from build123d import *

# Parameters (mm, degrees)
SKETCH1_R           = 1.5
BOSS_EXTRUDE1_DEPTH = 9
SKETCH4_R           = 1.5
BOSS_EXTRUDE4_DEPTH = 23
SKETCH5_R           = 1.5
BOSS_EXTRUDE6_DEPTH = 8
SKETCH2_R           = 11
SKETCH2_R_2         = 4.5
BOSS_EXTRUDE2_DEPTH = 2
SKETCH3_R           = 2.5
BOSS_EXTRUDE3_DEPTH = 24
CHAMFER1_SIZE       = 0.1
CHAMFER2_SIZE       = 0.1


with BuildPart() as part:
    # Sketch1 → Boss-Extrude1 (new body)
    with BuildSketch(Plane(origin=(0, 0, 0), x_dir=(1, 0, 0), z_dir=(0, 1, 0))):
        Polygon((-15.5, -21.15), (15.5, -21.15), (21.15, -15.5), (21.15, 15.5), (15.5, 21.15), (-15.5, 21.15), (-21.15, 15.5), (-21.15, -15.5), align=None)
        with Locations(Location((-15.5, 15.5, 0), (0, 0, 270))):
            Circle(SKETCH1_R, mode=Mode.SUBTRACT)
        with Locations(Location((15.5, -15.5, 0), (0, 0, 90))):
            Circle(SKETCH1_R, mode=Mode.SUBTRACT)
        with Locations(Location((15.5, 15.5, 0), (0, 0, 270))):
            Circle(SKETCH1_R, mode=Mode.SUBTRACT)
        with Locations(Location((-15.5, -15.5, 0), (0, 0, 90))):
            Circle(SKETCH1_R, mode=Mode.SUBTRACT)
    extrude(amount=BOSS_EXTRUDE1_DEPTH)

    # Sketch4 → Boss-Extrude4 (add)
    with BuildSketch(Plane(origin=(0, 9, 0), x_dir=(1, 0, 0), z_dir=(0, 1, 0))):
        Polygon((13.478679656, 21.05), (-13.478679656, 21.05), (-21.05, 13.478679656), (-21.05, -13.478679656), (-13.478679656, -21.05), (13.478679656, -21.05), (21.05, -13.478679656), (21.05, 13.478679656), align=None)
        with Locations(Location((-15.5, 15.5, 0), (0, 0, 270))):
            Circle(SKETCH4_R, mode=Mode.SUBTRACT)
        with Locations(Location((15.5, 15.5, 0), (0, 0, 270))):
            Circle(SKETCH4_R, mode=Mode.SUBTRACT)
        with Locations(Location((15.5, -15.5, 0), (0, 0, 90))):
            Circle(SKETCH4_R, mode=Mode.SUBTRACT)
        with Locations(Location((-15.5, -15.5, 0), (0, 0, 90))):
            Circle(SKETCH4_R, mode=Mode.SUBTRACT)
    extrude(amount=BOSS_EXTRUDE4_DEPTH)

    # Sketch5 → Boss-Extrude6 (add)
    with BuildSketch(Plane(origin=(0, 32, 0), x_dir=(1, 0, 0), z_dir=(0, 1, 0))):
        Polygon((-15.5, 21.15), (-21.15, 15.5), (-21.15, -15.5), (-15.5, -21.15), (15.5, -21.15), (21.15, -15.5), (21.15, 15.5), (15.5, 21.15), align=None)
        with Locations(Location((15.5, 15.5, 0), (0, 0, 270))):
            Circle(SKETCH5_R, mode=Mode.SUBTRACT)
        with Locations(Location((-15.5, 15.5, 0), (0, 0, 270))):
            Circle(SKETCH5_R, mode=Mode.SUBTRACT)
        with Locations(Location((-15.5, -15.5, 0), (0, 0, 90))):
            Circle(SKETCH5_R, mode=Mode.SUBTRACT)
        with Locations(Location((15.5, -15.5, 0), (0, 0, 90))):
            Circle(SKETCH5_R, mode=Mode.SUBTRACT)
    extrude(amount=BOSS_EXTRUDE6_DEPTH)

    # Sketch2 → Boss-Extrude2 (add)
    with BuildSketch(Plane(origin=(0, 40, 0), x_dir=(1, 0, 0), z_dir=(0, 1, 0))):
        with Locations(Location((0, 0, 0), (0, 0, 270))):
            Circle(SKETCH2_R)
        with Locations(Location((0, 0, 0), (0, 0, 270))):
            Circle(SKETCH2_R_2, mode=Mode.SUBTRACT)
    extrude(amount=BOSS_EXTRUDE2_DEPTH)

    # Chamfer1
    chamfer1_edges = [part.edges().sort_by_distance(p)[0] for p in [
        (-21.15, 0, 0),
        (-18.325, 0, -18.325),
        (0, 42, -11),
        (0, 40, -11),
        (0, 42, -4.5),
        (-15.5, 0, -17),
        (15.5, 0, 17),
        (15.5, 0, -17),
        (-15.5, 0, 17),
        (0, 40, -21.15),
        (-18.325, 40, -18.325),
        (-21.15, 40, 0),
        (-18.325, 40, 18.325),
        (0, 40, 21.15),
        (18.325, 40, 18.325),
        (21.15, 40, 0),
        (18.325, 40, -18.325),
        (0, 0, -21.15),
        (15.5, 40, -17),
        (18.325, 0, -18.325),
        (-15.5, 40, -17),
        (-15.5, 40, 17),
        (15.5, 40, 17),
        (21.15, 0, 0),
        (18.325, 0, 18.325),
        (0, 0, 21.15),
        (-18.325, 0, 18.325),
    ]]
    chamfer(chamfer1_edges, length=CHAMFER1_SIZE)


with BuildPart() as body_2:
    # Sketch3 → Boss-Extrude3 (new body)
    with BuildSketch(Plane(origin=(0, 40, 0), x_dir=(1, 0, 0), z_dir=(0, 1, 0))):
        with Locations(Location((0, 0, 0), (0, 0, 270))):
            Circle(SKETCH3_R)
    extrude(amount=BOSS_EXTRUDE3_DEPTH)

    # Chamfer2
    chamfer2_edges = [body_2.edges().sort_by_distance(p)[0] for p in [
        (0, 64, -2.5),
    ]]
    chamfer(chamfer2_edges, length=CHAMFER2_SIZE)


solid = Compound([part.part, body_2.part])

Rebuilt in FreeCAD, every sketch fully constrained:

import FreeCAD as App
import Part
import Sketcher
Q = App.Units.Quantity


def edges_at(feature, points):
    """Names of the edges that pass closest to the given points."""
    edges = feature.Shape.Edges
    near = lambda p: min(range(len(edges)), key=lambda i: edges[i].distToShape(Part.Vertex(*p))[0])
    return sorted({f"Edge{near(p) + 1}" for p in points})

doc = App.newDocument("Part")
body = doc.addObject("PartDesign::Body", "Body")

sketch1 = body.newObject("Sketcher::SketchObject", "Sketch")
sketch1.AttachmentSupport = (doc.getObject("XZ_Plane"), [""])
sketch1.MapMode = "FlatFace"
sketch1.addGeometry(Part.LineSegment(App.Vector(-15.5, 21.1, 0), App.Vector(15.5, 21.1, 0)), False)
sketch1.addGeometry(Part.LineSegment(App.Vector(15.5, 21.1, 0), App.Vector(21.1, 15.5, 0)), False)
sketch1.addGeometry(Part.LineSegment(App.Vector(21.1, 15.5, 0), App.Vector(21.1, -15.5, 0)), False)
sketch1.addGeometry(Part.LineSegment(App.Vector(21.1, -15.5, 0), App.Vector(15.5, -21.1, 0)), False)
sketch1.addGeometry(Part.LineSegment(App.Vector(15.5, -21.1, 0), App.Vector(-15.5, -21.1, 0)), False)
sketch1.addGeometry(Part.LineSegment(App.Vector(-15.5, -21.1, 0), App.Vector(-21.1, -15.5, 0)), False)
sketch1.addGeometry(Part.LineSegment(App.Vector(-21.1, -15.5, 0), App.Vector(-21.1, 15.5, 0)), False)
sketch1.addGeometry(Part.LineSegment(App.Vector(-21.1, 15.5, 0), App.Vector(-15.5, 21.1, 0)), False)
sketch1.addGeometry(Part.Circle(App.Vector(-15.5, 15.5, 0), App.Vector(0, 0, 1), 1.5), False)
sketch1.addGeometry(Part.Circle(App.Vector(15.5, 15.5, 0), App.Vector(0, 0, 1), 1.5), False)
sketch1.addGeometry(Part.Circle(App.Vector(-15.5, -15.5, 0), App.Vector(0, 0, 1), 1.5), False)
sketch1.addGeometry(Part.Circle(App.Vector(15.5, -15.5, 0), App.Vector(0, 0, 1), 1.5), False)
sketch1.addConstraint(Sketcher.Constraint("Coincident", 0, 2, 1, 1))
sketch1.addConstraint(Sketcher.Constraint("Coincident", 1, 2, 2, 1))
sketch1.addConstraint(Sketcher.Constraint("Coincident", 2, 2, 3, 1))
sketch1.addConstraint(Sketcher.Constraint("Coincident", 3, 2, 4, 1))
sketch1.addConstraint(Sketcher.Constraint("Coincident", 4, 2, 5, 1))
sketch1.addConstraint(Sketcher.Constraint("Coincident", 5, 2, 6, 1))
sketch1.addConstraint(Sketcher.Constraint("Coincident", 6, 2, 7, 1))
sketch1.addConstraint(Sketcher.Constraint("Coincident", 7, 2, 0, 1))
sketch1.addConstraint(Sketcher.Constraint("Horizontal", 0))
sketch1.addConstraint(Sketcher.Constraint("Vertical", 2))
sketch1.addConstraint(Sketcher.Constraint("Horizontal", 4))
sketch1.addConstraint(Sketcher.Constraint("Vertical", 6))
sketch1.addConstraint(Sketcher.Constraint("Equal", 8, 9))
sketch1.addConstraint(Sketcher.Constraint("Equal", 9, 10))
sketch1.addConstraint(Sketcher.Constraint("Equal", 10, 11))
sketch1.addConstraint(Sketcher.Constraint("Symmetric", 9, 3, 10, 3, -1, 1))
sketch1.addConstraint(Sketcher.Constraint("Symmetric", 8, 3, 11, 3, -1, 1))
sketch1.addConstraint(Sketcher.Constraint("Symmetric", 0, 2, 4, 2, -1, 1))
sketch1.addConstraint(Sketcher.Constraint("Symmetric", 1, 2, 5, 2, -1, 1))
sketch1.addConstraint(Sketcher.Constraint("Symmetric", 8, 3, 9, 3, -2))
sketch1.addConstraint(Sketcher.Constraint("Perpendicular", 1, 3))
sketch1.addConstraint(Sketcher.Constraint("Perpendicular", 5, 7))
sketch1.addConstraint(Sketcher.Constraint("Horizontal", 9, 3, 1, 2))
sketch1.addConstraint(Sketcher.Constraint("Horizontal", 11, 3, 2, 2))
sketch1.addConstraint(Sketcher.Constraint("Horizontal", 1, 2, 6, 2))
sketch1.addConstraint(Sketcher.Constraint("Vertical", 11, 3, 0, 2))
sketch1.addConstraint(Sketcher.Constraint("Vertical", 0, 2, 3, 2))
sketch1.addConstraint(Sketcher.Constraint("Equal", 4, 2))
sketch1.addConstraint(Sketcher.Constraint("Diameter", 8, Q("3 mm")))
sketch1.addConstraint(Sketcher.Constraint("DistanceX", 0, 1, 0, 2, Q("31 mm")))
sketch1.addConstraint(Sketcher.Constraint("DistanceY", -1, 1, 0, 2, Q("21.15 mm")))
pad1 = body.newObject("PartDesign::Pad", "Pad")
pad1.Profile = sketch1
pad1.Length = 9
pad1.Reversed = True

sketch2 = body.newObject("Sketcher::SketchObject", "Sketch001")
sketch2.AttachmentSupport = (doc.getObject("XZ_Plane"), [""])
sketch2.MapMode = "FlatFace"
sketch2.AttachmentOffset = App.Placement(App.Vector(0, 0, -9), App.Rotation())
sketch2.addGeometry(Part.LineSegment(App.Vector(13.5, -21.1, 0), App.Vector(-13.5, -21.1, 0)), False)
sketch2.addGeometry(Part.LineSegment(App.Vector(-13.5, -21.1, 0), App.Vector(-21.1, -13.5, 0)), False)
sketch2.addGeometry(Part.LineSegment(App.Vector(-21.1, -13.5, 0), App.Vector(-21.1, 13.5, 0)), False)
sketch2.addGeometry(Part.LineSegment(App.Vector(-21.1, 13.5, 0), App.Vector(-13.5, 21.1, 0)), False)
sketch2.addGeometry(Part.LineSegment(App.Vector(-13.5, 21.1, 0), App.Vector(13.5, 21.1, 0)), False)
sketch2.addGeometry(Part.LineSegment(App.Vector(13.5, 21.1, 0), App.Vector(21.1, 13.5, 0)), False)
sketch2.addGeometry(Part.LineSegment(App.Vector(21.1, 13.5, 0), App.Vector(21.1, -13.5, 0)), False)
sketch2.addGeometry(Part.LineSegment(App.Vector(21.1, -13.5, 0), App.Vector(13.5, -21.1, 0)), False)
sketch2.addGeometry(Part.Circle(App.Vector(-15.5, 15.5, 0), App.Vector(0, 0, 1), 1.5), False)
sketch2.addGeometry(Part.Circle(App.Vector(15.5, 15.5, 0), App.Vector(0, 0, 1), 1.5), False)
sketch2.addGeometry(Part.Circle(App.Vector(-15.5, -15.5, 0), App.Vector(0, 0, 1), 1.5), False)
sketch2.addGeometry(Part.Circle(App.Vector(15.5, -15.5, 0), App.Vector(0, 0, 1), 1.5), False)
sketch2.addConstraint(Sketcher.Constraint("Coincident", 0, 2, 1, 1))
sketch2.addConstraint(Sketcher.Constraint("Coincident", 1, 2, 2, 1))
sketch2.addConstraint(Sketcher.Constraint("Coincident", 2, 2, 3, 1))
sketch2.addConstraint(Sketcher.Constraint("Coincident", 3, 2, 4, 1))
sketch2.addConstraint(Sketcher.Constraint("Coincident", 4, 2, 5, 1))
sketch2.addConstraint(Sketcher.Constraint("Coincident", 5, 2, 6, 1))
sketch2.addConstraint(Sketcher.Constraint("Coincident", 6, 2, 7, 1))
sketch2.addConstraint(Sketcher.Constraint("Coincident", 7, 2, 0, 1))
sketch2.addConstraint(Sketcher.Constraint("Horizontal", 0))
sketch2.addConstraint(Sketcher.Constraint("Vertical", 2))
sketch2.addConstraint(Sketcher.Constraint("Horizontal", 4))
sketch2.addConstraint(Sketcher.Constraint("Vertical", 6))
sketch2.addConstraint(Sketcher.Constraint("Equal", 8, 9))
sketch2.addConstraint(Sketcher.Constraint("Equal", 9, 10))
sketch2.addConstraint(Sketcher.Constraint("Equal", 10, 11))
sketch2.addConstraint(Sketcher.Constraint("Symmetric", 9, 3, 10, 3, -1, 1))
sketch2.addConstraint(Sketcher.Constraint("Symmetric", 8, 3, 11, 3, -1, 1))
sketch2.addConstraint(Sketcher.Constraint("Symmetric", 0, 2, 4, 2, -1, 1))
sketch2.addConstraint(Sketcher.Constraint("Symmetric", 1, 2, 5, 2, -1, 1))
sketch2.addConstraint(Sketcher.Constraint("Symmetric", 8, 3, 9, 3, -2))
sketch2.addConstraint(Sketcher.Constraint("Perpendicular", 1, 3))
sketch2.addConstraint(Sketcher.Constraint("Perpendicular", 5, 7))
sketch2.addConstraint(Sketcher.Constraint("Horizontal", 2, 2, 5, 2))
sketch2.addConstraint(Sketcher.Constraint("Horizontal", 1, 2, 6, 2))
sketch2.addConstraint(Sketcher.Constraint("Vertical", 0, 2, 3, 2))
sketch2.addConstraint(Sketcher.Constraint("Equal", 4, 2))
sketch2.addConstraint(Sketcher.Constraint("Diameter", 8, Q("3 mm")))
sketch2.addConstraint(Sketcher.Constraint("DistanceX", 8, 3, 9, 3, Q("31 mm")))
sketch2.addConstraint(Sketcher.Constraint("DistanceY", 10, 3, 8, 3, Q("31 mm")))
sketch2.addConstraint(Sketcher.Constraint("DistanceY", 0, 2, -1, 1, Q("21.05 mm")))
sketch2.addConstraint(Sketcher.Constraint("DistanceX", 0, 2, 0, 1, Q("26.957359 mm")))
pad2 = body.newObject("PartDesign::Pad", "Pad001")
pad2.Profile = sketch2
pad2.Length = 23
pad2.Reversed = True

sketch3 = body.newObject("Sketcher::SketchObject", "Sketch002")
sketch3.AttachmentSupport = (doc.getObject("XZ_Plane"), [""])
sketch3.MapMode = "FlatFace"
sketch3.AttachmentOffset = App.Placement(App.Vector(0, 0, -32), App.Rotation())
sketch3.addGeometry(Part.LineSegment(App.Vector(-15.5, -21.1, 0), App.Vector(-21.1, -15.5, 0)), False)
sketch3.addGeometry(Part.LineSegment(App.Vector(-21.1, -15.5, 0), App.Vector(-21.1, 15.5, 0)), False)
sketch3.addGeometry(Part.LineSegment(App.Vector(-21.1, 15.5, 0), App.Vector(-15.5, 21.1, 0)), False)
sketch3.addGeometry(Part.LineSegment(App.Vector(-15.5, 21.1, 0), App.Vector(15.5, 21.1, 0)), False)
sketch3.addGeometry(Part.LineSegment(App.Vector(15.5, 21.1, 0), App.Vector(21.1, 15.5, 0)), False)
sketch3.addGeometry(Part.LineSegment(App.Vector(21.1, 15.5, 0), App.Vector(21.1, -15.5, 0)), False)
sketch3.addGeometry(Part.LineSegment(App.Vector(21.1, -15.5, 0), App.Vector(15.5, -21.1, 0)), False)
sketch3.addGeometry(Part.LineSegment(App.Vector(15.5, -21.1, 0), App.Vector(-15.5, -21.1, 0)), False)
sketch3.addGeometry(Part.Circle(App.Vector(-15.5, 15.5, 0), App.Vector(0, 0, 1), 1.5), False)
sketch3.addGeometry(Part.Circle(App.Vector(15.5, 15.5, 0), App.Vector(0, 0, 1), 1.5), False)
sketch3.addGeometry(Part.Circle(App.Vector(-15.5, -15.5, 0), App.Vector(0, 0, 1), 1.5), False)
sketch3.addGeometry(Part.Circle(App.Vector(15.5, -15.5, 0), App.Vector(0, 0, 1), 1.5), False)
sketch3.addConstraint(Sketcher.Constraint("Coincident", 0, 2, 1, 1))
sketch3.addConstraint(Sketcher.Constraint("Coincident", 1, 2, 2, 1))
sketch3.addConstraint(Sketcher.Constraint("Coincident", 2, 2, 3, 1))
sketch3.addConstraint(Sketcher.Constraint("Coincident", 3, 2, 4, 1))
sketch3.addConstraint(Sketcher.Constraint("Coincident", 4, 2, 5, 1))
sketch3.addConstraint(Sketcher.Constraint("Coincident", 5, 2, 6, 1))
sketch3.addConstraint(Sketcher.Constraint("Coincident", 6, 2, 7, 1))
sketch3.addConstraint(Sketcher.Constraint("Coincident", 7, 2, 0, 1))
sketch3.addConstraint(Sketcher.Constraint("Vertical", 1))
sketch3.addConstraint(Sketcher.Constraint("Horizontal", 3))
sketch3.addConstraint(Sketcher.Constraint("Vertical", 5))
sketch3.addConstraint(Sketcher.Constraint("Horizontal", 7))
sketch3.addConstraint(Sketcher.Constraint("Equal", 8, 9))
sketch3.addConstraint(Sketcher.Constraint("Equal", 9, 10))
sketch3.addConstraint(Sketcher.Constraint("Equal", 10, 11))
sketch3.addConstraint(Sketcher.Constraint("Symmetric", 9, 3, 10, 3, -1, 1))
sketch3.addConstraint(Sketcher.Constraint("Symmetric", 8, 3, 11, 3, -1, 1))
sketch3.addConstraint(Sketcher.Constraint("Symmetric", 0, 2, 4, 2, -1, 1))
sketch3.addConstraint(Sketcher.Constraint("Symmetric", 2, 2, 6, 2, -1, 1))
sketch3.addConstraint(Sketcher.Constraint("Symmetric", 8, 3, 9, 3, -2))
sketch3.addConstraint(Sketcher.Constraint("Perpendicular", 0, 2))
sketch3.addConstraint(Sketcher.Constraint("Perpendicular", 2, 4))
sketch3.addConstraint(Sketcher.Constraint("Perpendicular", 4, 6))
sketch3.addConstraint(Sketcher.Constraint("Horizontal", 11, 3, 0, 2))
sketch3.addConstraint(Sketcher.Constraint("Horizontal", 9, 3, 1, 2))
sketch3.addConstraint(Sketcher.Constraint("Vertical", 10, 3, 2, 2))
sketch3.addConstraint(Sketcher.Constraint("Vertical", 11, 3, 3, 2))
sketch3.addConstraint(Sketcher.Constraint("Equal", 7, 1))
sketch3.addConstraint(Sketcher.Constraint("Diameter", 8, Q("3 mm")))
sketch3.addConstraint(Sketcher.Constraint("DistanceX", 3, 1, 3, 2, Q("31 mm")))
sketch3.addConstraint(Sketcher.Constraint("DistanceX", 0, 2, -1, 1, Q("21.15 mm")))
pad3 = body.newObject("PartDesign::Pad", "Pad002")
pad3.Profile = sketch3
pad3.Length = 8
pad3.Reversed = True

sketch4 = body.newObject("Sketcher::SketchObject", "Sketch003")
sketch4.AttachmentSupport = (doc.getObject("XZ_Plane"), [""])
sketch4.MapMode = "FlatFace"
sketch4.AttachmentOffset = App.Placement(App.Vector(0, 0, -40), App.Rotation())
sketch4.addGeometry(Part.Circle(App.Vector(0, 0, 0), App.Vector(0, 0, 1), 11), False)
sketch4.addGeometry(Part.Circle(App.Vector(0, 0, 0), App.Vector(0, 0, 1), 4.5), False)
sketch4.addConstraint(Sketcher.Constraint("Coincident", 0, 3, -1, 1))
sketch4.addConstraint(Sketcher.Constraint("Coincident", 1, 3, -1, 1))
sketch4.addConstraint(Sketcher.Constraint("Diameter", 0, Q("22 mm")))
sketch4.addConstraint(Sketcher.Constraint("Diameter", 1, Q("9 mm")))
pad4 = body.newObject("PartDesign::Pad", "Pad003")
pad4.Profile = sketch4
pad4.Length = 2
pad4.Reversed = True
doc.recompute()

chamfer = body.newObject("PartDesign::Chamfer", "Chamfer")
chamfer.Base = (pad4, edges_at(pad4, [
    (-21.15, 0, 0),
    (-18.325, 0, -18.325),
    (0, 42, -11),
    (0, 40, -11),
    (0, 42, -4.5),
    (-15.5, 0, -17),
    (15.5, 0, 17),
    (15.5, 0, -17),
    (-15.5, 0, 17),
    (0, 40, -21.15),
    (-18.325, 40, -18.325),
    (-21.15, 40, 0),
    (-18.325, 40, 18.325),
    (0, 40, 21.15),
    (18.325, 40, 18.325),
    (21.15, 40, 0),
    (18.325, 40, -18.325),
    (0, 0, -21.15),
    (15.5, 40, -17),
    (18.325, 0, -18.325),
    (-15.5, 40, -17),
    (-15.5, 40, 17),
    (15.5, 40, 17),
    (21.15, 0, 0),
    (18.325, 0, 18.325),
    (0, 0, 21.15),
    (-18.325, 0, 18.325),
]))
chamfer.Size = 0.1
body2 = doc.addObject("PartDesign::Body", "Body001")

sketch5 = body2.newObject("Sketcher::SketchObject", "Sketch004")
sketch5.AttachmentSupport = (doc.getObject("XZ_Plane001"), [""])
sketch5.MapMode = "FlatFace"
sketch5.AttachmentOffset = App.Placement(App.Vector(0, 0, -40), App.Rotation())
sketch5.addGeometry(Part.Circle(App.Vector(0, 0, 0), App.Vector(0, 0, 1), 2.5), False)
sketch5.addConstraint(Sketcher.Constraint("Coincident", 0, 3, -1, 1))
sketch5.addConstraint(Sketcher.Constraint("Diameter", 0, Q("5 mm")))
pad5 = body2.newObject("PartDesign::Pad", "Pad004")
pad5.Profile = sketch5
pad5.Length = 24
pad5.Reversed = True
doc.recompute()

chamfer2 = body2.newObject("PartDesign::Chamfer", "Chamfer001")
chamfer2.Base = (pad5, edges_at(pad5, [(0, 64, -2.5)]))
chamfer2.Size = 0.1

doc.recompute()
